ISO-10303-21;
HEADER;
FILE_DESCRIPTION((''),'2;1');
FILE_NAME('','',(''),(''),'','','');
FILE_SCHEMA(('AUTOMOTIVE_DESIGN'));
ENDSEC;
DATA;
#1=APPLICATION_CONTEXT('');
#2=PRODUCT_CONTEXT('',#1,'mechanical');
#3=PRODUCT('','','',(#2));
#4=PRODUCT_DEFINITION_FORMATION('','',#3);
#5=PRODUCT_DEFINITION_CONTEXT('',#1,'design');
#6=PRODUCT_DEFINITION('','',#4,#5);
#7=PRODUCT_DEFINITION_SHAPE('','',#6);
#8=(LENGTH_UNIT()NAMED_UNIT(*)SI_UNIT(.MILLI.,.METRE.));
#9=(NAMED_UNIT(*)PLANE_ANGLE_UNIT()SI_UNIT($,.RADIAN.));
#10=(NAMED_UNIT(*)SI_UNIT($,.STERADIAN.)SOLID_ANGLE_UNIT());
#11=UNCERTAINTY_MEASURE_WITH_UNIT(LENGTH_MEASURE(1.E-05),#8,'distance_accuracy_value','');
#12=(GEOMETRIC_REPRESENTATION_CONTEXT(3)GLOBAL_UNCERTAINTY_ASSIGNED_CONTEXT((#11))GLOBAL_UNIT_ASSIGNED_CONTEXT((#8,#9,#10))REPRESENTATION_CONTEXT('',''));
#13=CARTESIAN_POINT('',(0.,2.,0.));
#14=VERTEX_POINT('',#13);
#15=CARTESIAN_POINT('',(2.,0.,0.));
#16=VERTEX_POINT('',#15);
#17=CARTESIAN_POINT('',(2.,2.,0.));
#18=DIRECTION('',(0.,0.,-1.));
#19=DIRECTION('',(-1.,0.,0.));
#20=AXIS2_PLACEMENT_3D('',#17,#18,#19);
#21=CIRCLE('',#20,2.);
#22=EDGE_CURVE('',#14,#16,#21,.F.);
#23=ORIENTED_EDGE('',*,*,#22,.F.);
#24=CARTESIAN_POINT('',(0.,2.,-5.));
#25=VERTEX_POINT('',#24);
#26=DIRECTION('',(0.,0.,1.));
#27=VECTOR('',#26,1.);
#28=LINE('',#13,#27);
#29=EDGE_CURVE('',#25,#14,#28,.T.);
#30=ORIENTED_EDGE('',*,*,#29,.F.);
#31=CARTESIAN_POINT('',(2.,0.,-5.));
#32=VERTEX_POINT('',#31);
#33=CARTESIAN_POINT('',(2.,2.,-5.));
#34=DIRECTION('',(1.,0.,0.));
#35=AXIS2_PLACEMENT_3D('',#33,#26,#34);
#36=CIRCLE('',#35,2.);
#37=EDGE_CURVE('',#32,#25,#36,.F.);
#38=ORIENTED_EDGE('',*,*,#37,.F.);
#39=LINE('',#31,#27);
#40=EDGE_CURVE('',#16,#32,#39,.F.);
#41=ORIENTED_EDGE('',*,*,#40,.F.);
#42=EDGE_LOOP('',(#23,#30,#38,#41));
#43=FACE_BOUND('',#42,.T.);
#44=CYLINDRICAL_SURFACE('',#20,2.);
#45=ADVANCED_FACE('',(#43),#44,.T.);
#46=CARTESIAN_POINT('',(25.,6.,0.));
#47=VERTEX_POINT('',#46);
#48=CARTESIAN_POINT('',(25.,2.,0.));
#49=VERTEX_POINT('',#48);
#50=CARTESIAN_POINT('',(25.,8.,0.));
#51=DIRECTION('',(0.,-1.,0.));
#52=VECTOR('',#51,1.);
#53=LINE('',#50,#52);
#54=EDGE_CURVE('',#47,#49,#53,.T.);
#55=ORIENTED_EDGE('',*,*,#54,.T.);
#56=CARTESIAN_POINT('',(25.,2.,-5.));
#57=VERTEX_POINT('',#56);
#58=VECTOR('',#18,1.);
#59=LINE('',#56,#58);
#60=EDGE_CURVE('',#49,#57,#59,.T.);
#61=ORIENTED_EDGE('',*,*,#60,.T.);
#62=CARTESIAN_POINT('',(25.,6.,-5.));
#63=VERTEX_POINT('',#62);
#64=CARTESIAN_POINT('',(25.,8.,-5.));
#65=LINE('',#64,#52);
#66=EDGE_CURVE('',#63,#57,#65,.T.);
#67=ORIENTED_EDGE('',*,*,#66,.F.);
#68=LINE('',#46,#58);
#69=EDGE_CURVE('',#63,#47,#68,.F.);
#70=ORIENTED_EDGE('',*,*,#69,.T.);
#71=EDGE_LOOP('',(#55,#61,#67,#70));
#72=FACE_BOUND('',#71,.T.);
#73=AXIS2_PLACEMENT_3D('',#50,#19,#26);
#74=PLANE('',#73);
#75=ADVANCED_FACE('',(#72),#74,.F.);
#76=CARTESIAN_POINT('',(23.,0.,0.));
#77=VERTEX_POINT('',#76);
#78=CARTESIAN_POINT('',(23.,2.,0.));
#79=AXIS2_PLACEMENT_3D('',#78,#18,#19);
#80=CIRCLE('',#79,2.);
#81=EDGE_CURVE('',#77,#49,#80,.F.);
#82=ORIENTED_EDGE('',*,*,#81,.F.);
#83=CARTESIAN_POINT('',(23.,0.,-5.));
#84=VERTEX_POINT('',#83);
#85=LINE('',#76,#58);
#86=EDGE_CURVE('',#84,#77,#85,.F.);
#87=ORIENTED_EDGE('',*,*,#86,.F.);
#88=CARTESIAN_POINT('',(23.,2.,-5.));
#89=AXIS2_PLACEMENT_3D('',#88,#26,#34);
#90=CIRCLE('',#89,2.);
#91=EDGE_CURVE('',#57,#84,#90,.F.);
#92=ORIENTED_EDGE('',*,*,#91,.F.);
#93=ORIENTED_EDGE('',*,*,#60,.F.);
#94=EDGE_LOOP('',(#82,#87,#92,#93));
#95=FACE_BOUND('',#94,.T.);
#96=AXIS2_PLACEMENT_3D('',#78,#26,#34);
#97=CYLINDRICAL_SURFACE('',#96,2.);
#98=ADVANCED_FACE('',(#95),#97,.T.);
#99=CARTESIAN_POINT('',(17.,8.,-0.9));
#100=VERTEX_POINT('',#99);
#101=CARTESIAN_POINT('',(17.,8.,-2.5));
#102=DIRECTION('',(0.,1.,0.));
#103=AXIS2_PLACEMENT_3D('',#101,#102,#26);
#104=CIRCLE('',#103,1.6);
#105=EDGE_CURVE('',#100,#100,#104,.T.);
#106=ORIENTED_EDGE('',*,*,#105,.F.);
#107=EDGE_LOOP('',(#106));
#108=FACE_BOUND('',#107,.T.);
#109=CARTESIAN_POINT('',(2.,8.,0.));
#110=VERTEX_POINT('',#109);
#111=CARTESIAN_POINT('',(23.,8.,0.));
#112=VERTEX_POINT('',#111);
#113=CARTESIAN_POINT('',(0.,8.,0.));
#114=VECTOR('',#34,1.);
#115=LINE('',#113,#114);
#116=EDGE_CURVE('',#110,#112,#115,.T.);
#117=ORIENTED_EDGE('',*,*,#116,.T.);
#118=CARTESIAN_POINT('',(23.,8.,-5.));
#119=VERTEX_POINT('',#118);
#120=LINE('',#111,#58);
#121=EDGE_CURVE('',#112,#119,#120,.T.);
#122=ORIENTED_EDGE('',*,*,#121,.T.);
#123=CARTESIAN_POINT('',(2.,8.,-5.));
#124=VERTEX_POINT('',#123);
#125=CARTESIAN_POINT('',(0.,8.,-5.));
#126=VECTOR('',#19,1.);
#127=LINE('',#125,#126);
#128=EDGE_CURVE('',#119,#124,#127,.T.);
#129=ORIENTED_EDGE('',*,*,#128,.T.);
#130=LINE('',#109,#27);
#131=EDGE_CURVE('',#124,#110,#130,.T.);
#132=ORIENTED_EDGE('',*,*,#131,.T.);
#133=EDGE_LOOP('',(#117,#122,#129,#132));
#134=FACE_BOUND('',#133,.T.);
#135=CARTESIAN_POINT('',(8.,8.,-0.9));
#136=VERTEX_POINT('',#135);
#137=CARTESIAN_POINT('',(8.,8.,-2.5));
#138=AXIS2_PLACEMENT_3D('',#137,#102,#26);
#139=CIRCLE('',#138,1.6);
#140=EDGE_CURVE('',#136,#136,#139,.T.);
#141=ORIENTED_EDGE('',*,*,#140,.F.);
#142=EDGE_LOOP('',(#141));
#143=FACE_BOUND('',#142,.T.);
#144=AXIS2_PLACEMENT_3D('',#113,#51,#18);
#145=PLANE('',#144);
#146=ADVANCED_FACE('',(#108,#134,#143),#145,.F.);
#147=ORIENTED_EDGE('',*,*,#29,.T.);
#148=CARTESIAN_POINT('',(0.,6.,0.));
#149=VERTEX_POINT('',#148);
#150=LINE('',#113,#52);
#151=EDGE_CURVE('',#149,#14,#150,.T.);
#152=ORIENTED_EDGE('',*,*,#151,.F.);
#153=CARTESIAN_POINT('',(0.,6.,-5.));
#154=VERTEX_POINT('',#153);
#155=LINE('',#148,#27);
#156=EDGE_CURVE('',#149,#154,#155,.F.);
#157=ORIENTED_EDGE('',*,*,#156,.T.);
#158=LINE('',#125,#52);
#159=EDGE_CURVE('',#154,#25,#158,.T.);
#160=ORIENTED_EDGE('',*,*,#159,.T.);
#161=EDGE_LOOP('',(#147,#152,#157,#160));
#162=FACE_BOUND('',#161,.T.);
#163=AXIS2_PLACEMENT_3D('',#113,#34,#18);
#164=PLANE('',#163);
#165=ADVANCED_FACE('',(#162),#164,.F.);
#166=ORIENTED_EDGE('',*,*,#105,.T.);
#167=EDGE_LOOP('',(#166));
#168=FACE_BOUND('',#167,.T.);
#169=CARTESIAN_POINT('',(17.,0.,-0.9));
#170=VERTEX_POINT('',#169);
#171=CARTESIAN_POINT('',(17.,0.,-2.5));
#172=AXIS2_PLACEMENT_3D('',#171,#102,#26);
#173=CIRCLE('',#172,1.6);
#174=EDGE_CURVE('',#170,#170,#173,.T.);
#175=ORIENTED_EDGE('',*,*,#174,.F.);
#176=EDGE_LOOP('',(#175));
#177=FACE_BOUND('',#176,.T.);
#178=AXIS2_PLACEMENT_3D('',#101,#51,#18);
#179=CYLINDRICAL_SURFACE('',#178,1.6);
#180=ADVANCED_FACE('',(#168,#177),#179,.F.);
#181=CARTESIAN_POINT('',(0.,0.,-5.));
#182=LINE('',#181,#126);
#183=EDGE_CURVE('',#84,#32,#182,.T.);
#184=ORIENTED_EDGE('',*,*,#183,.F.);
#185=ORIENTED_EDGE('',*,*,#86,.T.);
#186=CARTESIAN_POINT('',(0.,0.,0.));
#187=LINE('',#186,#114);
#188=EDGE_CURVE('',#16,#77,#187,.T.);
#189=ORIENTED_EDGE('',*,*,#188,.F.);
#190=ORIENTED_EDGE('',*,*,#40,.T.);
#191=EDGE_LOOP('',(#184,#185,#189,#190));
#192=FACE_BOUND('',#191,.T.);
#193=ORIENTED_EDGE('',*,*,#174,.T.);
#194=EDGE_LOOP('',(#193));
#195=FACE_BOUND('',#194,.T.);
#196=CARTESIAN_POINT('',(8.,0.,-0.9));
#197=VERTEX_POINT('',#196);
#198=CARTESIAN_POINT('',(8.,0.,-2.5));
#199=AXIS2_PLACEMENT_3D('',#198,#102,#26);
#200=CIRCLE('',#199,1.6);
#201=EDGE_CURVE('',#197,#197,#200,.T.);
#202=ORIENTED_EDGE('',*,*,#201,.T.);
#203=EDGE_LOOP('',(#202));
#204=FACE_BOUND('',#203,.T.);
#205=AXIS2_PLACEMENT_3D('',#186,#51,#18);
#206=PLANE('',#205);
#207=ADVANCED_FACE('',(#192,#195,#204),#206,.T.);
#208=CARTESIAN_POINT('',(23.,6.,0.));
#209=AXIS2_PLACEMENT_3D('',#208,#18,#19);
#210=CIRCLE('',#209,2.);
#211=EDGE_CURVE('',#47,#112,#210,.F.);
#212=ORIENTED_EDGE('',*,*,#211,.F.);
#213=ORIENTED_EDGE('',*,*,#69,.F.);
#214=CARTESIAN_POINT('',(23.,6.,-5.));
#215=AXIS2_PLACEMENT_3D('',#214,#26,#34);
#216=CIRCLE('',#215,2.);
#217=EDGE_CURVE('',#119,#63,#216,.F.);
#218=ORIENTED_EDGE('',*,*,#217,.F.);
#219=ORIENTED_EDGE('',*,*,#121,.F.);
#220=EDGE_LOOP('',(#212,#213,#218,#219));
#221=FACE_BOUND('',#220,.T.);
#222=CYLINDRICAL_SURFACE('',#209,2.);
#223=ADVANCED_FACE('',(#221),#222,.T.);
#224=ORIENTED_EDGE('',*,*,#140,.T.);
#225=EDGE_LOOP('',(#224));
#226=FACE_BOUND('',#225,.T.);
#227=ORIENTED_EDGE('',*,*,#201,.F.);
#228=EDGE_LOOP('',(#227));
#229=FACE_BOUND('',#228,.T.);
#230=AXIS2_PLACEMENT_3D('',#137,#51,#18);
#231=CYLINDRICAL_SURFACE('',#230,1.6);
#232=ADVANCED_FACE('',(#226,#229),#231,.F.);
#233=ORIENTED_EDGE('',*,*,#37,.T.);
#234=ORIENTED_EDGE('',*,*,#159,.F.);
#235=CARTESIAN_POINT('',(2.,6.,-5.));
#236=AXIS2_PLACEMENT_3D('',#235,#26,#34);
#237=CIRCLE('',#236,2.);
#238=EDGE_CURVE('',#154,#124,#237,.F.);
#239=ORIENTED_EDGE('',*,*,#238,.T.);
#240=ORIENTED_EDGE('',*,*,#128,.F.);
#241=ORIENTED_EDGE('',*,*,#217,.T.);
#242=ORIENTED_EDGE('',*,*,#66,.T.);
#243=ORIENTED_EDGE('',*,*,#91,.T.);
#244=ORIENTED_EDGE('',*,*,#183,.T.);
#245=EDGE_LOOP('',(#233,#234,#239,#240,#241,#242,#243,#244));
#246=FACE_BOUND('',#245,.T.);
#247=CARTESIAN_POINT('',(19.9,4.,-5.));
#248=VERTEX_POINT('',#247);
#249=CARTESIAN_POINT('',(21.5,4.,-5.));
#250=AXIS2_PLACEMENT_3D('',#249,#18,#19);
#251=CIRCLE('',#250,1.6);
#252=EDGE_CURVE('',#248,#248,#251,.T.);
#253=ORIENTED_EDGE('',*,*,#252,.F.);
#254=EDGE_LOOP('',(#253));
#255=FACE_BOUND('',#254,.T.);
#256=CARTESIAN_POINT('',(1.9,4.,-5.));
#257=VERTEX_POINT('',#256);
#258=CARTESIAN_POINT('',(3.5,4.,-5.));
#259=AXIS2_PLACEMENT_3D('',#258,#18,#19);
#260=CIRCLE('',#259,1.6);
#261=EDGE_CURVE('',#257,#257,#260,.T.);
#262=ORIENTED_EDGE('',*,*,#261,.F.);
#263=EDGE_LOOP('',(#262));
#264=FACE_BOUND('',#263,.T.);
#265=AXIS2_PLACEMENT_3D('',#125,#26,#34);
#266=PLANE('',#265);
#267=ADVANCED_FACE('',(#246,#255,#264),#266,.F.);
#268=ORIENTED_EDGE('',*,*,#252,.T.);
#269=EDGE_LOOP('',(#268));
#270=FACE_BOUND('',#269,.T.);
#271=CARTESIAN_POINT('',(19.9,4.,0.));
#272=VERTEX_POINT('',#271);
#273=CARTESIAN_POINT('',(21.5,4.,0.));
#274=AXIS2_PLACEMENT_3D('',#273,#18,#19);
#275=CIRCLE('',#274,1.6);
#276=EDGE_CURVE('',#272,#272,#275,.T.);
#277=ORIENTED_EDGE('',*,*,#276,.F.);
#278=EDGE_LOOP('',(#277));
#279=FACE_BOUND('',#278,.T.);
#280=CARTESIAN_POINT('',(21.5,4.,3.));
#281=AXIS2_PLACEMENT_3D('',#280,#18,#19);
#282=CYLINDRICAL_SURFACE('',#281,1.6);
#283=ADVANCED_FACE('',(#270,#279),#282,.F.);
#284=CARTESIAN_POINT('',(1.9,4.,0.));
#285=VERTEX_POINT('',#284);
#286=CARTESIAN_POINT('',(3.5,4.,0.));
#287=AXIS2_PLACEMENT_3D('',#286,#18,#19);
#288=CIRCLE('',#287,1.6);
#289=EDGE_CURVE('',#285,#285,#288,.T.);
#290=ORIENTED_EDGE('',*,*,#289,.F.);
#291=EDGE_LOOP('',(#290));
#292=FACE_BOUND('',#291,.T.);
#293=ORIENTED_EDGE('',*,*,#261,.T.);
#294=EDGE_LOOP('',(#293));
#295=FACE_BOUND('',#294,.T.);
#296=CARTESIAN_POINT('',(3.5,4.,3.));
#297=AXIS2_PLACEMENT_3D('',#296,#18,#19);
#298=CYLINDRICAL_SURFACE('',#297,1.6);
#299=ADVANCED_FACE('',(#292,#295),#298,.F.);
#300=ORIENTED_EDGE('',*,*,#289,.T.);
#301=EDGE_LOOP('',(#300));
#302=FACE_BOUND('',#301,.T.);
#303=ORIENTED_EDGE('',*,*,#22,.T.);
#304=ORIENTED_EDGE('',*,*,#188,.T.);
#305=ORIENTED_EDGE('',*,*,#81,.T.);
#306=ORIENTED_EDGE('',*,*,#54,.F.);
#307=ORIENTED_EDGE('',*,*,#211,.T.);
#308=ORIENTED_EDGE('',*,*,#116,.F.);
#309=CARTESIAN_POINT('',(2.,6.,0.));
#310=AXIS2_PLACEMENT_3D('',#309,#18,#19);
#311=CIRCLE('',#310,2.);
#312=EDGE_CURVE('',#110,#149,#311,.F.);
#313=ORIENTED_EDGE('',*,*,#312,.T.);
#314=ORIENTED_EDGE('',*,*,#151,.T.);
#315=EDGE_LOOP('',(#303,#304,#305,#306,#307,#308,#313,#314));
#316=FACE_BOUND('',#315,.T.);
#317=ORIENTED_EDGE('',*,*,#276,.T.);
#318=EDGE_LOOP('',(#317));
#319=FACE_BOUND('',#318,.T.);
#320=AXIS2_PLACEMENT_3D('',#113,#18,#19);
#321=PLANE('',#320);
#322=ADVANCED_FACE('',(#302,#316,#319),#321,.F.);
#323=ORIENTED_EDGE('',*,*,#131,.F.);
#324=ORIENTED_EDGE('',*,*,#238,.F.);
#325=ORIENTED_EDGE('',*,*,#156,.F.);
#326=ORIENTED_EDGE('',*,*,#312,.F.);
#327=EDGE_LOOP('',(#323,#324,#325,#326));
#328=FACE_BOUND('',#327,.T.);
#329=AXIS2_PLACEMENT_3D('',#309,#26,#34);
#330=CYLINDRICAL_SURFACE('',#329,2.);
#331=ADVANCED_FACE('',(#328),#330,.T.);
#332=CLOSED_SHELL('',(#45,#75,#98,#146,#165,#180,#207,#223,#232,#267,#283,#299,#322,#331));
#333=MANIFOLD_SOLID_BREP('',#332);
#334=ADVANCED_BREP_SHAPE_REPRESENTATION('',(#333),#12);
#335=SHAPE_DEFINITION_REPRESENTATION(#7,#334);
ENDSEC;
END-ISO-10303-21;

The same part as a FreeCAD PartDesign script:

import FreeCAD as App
import Part
import Sketcher

V = App.Vector
Q = App.Units.Quantity


def edges_at(feature, points):
    """Names of the edges that pass closest to the given points."""
    edges = feature.Shape.Edges
    near = lambda p: min(range(len(edges)), key=lambda i: edges[i].distToShape(Part.Vertex(*p))[0])
    return sorted({f"Edge{near(p) + 1}" for p in points})


def add_polygon(sketch, points):
    """Adds a closed chain of lines whose ends are joined by coincident constraints."""
    first, n = sketch.GeometryCount, len(points)
    for a, b in zip(points, points[1:] + points[:1]):
        sketch.addGeometry(Part.LineSegment(App.Vector(*a, 0), App.Vector(*b, 0)), False)
    for i in range(n):
        sketch.addConstraint(Sketcher.Constraint("Coincident", first + i, 2, first + (i + 1) % n, 1))

doc = App.newDocument("Part")
params = doc.addObject("Spreadsheet::Sheet", "Params")
for row, (alias, value) in enumerate([
    ("sketch1_diameter", "3.2 mm"),
    ("sketch1_width", "25 mm"),
    ("sketch1_height", "5 mm"),
    ("pad1_length", "8 mm"),
    ("sketch2_diameter", "3.2 mm"),
    ("pocket1_length", "8 mm"),
    ("fillet_radius", "2 mm"),
], start=1):
    params.set(f"A{row}", alias)
    params.set(f"B{row}", "=" + value)
    params.setAlias(f"B{row}", alias)

body = doc.addObject("PartDesign::Body", "Body")

# Sketch on XZ plane
sketch1 = doc.addObject("Sketcher::SketchObject", "Sketch")
body.addObject(sketch1)
sketch1.AttachmentSupport = (doc.XZ_Plane, [""])
sketch1.MapMode = "FlatFace"
add_polygon(sketch1, [(0, -5), (0, 0), (25, 0), (25, -5)])  # lines 0-3
sketch1.addGeometry(Part.Circle(V(8, -2.5, 0), V(0, 0, 1), 1.6), False)  # 4
sketch1.addGeometry(Part.Circle(V(17, -2.5, 0), V(0, 0, 1), 1.6), False)  # 5
sketch1.addConstraint([
    Sketcher.Constraint("Vertical", 0),
    Sketcher.Constraint("Horizontal", 1),
    Sketcher.Constraint("Vertical", 2),
    Sketcher.Constraint("Horizontal", 3),
    Sketcher.Constraint("Coincident", 0, 2, -1, 1),
    Sketcher.Constraint("Equal", 4, 5),
    Sketcher.Constraint("Horizontal", 4, 3, 5, 3),
    Sketcher.Constraint("Diameter", 4, Q("3.2 mm")),
    Sketcher.Constraint("DistanceX", 1, 1, 1, 2, Q("25 mm")),
    Sketcher.Constraint("DistanceY", 0, 1, 0, 2, Q("5 mm")),
    Sketcher.Constraint("DistanceX", -1, 1, 4, 3, Q("8 mm")),
    Sketcher.Constraint("DistanceX", -1, 1, 5, 3, Q("17 mm")),
    Sketcher.Constraint("DistanceY", 4, 3, -1, 1, Q("2.5 mm")),
])
sketch1.setExpression("Constraints[11]", "Params.sketch1_diameter")
sketch1.setExpression("Constraints[12]", "Params.sketch1_width")
sketch1.setExpression("Constraints[13]", "Params.sketch1_height")
pad1 = doc.addObject("PartDesign::Pad", "Pad")
body.addObject(pad1)
pad1.Profile = sketch1
pad1.setExpression("Length", "Params.pad1_length")
pad1.Reversed = True

# Sketch on XY plane
sketch2 = doc.addObject("Sketcher::SketchObject", "Sketch001")
body.addObject(sketch2)
sketch2.AttachmentSupport = (doc.XY_Plane, [""])
sketch2.MapMode = "FlatFace"
sketch2.AttachmentOffset = App.Placement(V(0, 0, -5), App.Rotation())
sketch2.addGeometry([
    Part.Circle(V(21.5, 4, 0), V(0, 0, 1), 1.6),
    Part.Circle(V(3.5, 4, 0), V(0, 0, 1), 1.6),
], False)
sketch2.addConstraint([
    Sketcher.Constraint("Equal", 0, 1),
    Sketcher.Constraint("Horizontal", 0, 3, 1, 3),
    Sketcher.Constraint("Diameter", 0, Q("3.2 mm")),
    Sketcher.Constraint("DistanceY", -1, 1, 0, 3, Q("4 mm")),
    Sketcher.Constraint("DistanceX", 1, 3, 0, 3, Q("18 mm")),
    Sketcher.Constraint("DistanceX", -1, 1, 0, 3, Q("21.5 mm")),
])
sketch2.setExpression("Constraints[2]", "Params.sketch2_diameter")
pocket1 = doc.addObject("PartDesign::Pocket", "Pocket")
body.addObject(pocket1)
pocket1.Profile = sketch2
pocket1.setExpression("Length", "Params.pocket1_length")
pocket1.Reversed = True
doc.recompute()

fillet = doc.addObject("PartDesign::Fillet", "Fillet")
body.addObject(fillet)
fillet.Base = (pocket1, edges_at(pocket1, [
    (25, 8, -2.5),
    (0, 8, -2.5),
    (25, 0, -2.5),
    (0, 0, -2.5),
]))
fillet.setExpression("Radius", "Params.fillet_radius")

doc.recompute()
